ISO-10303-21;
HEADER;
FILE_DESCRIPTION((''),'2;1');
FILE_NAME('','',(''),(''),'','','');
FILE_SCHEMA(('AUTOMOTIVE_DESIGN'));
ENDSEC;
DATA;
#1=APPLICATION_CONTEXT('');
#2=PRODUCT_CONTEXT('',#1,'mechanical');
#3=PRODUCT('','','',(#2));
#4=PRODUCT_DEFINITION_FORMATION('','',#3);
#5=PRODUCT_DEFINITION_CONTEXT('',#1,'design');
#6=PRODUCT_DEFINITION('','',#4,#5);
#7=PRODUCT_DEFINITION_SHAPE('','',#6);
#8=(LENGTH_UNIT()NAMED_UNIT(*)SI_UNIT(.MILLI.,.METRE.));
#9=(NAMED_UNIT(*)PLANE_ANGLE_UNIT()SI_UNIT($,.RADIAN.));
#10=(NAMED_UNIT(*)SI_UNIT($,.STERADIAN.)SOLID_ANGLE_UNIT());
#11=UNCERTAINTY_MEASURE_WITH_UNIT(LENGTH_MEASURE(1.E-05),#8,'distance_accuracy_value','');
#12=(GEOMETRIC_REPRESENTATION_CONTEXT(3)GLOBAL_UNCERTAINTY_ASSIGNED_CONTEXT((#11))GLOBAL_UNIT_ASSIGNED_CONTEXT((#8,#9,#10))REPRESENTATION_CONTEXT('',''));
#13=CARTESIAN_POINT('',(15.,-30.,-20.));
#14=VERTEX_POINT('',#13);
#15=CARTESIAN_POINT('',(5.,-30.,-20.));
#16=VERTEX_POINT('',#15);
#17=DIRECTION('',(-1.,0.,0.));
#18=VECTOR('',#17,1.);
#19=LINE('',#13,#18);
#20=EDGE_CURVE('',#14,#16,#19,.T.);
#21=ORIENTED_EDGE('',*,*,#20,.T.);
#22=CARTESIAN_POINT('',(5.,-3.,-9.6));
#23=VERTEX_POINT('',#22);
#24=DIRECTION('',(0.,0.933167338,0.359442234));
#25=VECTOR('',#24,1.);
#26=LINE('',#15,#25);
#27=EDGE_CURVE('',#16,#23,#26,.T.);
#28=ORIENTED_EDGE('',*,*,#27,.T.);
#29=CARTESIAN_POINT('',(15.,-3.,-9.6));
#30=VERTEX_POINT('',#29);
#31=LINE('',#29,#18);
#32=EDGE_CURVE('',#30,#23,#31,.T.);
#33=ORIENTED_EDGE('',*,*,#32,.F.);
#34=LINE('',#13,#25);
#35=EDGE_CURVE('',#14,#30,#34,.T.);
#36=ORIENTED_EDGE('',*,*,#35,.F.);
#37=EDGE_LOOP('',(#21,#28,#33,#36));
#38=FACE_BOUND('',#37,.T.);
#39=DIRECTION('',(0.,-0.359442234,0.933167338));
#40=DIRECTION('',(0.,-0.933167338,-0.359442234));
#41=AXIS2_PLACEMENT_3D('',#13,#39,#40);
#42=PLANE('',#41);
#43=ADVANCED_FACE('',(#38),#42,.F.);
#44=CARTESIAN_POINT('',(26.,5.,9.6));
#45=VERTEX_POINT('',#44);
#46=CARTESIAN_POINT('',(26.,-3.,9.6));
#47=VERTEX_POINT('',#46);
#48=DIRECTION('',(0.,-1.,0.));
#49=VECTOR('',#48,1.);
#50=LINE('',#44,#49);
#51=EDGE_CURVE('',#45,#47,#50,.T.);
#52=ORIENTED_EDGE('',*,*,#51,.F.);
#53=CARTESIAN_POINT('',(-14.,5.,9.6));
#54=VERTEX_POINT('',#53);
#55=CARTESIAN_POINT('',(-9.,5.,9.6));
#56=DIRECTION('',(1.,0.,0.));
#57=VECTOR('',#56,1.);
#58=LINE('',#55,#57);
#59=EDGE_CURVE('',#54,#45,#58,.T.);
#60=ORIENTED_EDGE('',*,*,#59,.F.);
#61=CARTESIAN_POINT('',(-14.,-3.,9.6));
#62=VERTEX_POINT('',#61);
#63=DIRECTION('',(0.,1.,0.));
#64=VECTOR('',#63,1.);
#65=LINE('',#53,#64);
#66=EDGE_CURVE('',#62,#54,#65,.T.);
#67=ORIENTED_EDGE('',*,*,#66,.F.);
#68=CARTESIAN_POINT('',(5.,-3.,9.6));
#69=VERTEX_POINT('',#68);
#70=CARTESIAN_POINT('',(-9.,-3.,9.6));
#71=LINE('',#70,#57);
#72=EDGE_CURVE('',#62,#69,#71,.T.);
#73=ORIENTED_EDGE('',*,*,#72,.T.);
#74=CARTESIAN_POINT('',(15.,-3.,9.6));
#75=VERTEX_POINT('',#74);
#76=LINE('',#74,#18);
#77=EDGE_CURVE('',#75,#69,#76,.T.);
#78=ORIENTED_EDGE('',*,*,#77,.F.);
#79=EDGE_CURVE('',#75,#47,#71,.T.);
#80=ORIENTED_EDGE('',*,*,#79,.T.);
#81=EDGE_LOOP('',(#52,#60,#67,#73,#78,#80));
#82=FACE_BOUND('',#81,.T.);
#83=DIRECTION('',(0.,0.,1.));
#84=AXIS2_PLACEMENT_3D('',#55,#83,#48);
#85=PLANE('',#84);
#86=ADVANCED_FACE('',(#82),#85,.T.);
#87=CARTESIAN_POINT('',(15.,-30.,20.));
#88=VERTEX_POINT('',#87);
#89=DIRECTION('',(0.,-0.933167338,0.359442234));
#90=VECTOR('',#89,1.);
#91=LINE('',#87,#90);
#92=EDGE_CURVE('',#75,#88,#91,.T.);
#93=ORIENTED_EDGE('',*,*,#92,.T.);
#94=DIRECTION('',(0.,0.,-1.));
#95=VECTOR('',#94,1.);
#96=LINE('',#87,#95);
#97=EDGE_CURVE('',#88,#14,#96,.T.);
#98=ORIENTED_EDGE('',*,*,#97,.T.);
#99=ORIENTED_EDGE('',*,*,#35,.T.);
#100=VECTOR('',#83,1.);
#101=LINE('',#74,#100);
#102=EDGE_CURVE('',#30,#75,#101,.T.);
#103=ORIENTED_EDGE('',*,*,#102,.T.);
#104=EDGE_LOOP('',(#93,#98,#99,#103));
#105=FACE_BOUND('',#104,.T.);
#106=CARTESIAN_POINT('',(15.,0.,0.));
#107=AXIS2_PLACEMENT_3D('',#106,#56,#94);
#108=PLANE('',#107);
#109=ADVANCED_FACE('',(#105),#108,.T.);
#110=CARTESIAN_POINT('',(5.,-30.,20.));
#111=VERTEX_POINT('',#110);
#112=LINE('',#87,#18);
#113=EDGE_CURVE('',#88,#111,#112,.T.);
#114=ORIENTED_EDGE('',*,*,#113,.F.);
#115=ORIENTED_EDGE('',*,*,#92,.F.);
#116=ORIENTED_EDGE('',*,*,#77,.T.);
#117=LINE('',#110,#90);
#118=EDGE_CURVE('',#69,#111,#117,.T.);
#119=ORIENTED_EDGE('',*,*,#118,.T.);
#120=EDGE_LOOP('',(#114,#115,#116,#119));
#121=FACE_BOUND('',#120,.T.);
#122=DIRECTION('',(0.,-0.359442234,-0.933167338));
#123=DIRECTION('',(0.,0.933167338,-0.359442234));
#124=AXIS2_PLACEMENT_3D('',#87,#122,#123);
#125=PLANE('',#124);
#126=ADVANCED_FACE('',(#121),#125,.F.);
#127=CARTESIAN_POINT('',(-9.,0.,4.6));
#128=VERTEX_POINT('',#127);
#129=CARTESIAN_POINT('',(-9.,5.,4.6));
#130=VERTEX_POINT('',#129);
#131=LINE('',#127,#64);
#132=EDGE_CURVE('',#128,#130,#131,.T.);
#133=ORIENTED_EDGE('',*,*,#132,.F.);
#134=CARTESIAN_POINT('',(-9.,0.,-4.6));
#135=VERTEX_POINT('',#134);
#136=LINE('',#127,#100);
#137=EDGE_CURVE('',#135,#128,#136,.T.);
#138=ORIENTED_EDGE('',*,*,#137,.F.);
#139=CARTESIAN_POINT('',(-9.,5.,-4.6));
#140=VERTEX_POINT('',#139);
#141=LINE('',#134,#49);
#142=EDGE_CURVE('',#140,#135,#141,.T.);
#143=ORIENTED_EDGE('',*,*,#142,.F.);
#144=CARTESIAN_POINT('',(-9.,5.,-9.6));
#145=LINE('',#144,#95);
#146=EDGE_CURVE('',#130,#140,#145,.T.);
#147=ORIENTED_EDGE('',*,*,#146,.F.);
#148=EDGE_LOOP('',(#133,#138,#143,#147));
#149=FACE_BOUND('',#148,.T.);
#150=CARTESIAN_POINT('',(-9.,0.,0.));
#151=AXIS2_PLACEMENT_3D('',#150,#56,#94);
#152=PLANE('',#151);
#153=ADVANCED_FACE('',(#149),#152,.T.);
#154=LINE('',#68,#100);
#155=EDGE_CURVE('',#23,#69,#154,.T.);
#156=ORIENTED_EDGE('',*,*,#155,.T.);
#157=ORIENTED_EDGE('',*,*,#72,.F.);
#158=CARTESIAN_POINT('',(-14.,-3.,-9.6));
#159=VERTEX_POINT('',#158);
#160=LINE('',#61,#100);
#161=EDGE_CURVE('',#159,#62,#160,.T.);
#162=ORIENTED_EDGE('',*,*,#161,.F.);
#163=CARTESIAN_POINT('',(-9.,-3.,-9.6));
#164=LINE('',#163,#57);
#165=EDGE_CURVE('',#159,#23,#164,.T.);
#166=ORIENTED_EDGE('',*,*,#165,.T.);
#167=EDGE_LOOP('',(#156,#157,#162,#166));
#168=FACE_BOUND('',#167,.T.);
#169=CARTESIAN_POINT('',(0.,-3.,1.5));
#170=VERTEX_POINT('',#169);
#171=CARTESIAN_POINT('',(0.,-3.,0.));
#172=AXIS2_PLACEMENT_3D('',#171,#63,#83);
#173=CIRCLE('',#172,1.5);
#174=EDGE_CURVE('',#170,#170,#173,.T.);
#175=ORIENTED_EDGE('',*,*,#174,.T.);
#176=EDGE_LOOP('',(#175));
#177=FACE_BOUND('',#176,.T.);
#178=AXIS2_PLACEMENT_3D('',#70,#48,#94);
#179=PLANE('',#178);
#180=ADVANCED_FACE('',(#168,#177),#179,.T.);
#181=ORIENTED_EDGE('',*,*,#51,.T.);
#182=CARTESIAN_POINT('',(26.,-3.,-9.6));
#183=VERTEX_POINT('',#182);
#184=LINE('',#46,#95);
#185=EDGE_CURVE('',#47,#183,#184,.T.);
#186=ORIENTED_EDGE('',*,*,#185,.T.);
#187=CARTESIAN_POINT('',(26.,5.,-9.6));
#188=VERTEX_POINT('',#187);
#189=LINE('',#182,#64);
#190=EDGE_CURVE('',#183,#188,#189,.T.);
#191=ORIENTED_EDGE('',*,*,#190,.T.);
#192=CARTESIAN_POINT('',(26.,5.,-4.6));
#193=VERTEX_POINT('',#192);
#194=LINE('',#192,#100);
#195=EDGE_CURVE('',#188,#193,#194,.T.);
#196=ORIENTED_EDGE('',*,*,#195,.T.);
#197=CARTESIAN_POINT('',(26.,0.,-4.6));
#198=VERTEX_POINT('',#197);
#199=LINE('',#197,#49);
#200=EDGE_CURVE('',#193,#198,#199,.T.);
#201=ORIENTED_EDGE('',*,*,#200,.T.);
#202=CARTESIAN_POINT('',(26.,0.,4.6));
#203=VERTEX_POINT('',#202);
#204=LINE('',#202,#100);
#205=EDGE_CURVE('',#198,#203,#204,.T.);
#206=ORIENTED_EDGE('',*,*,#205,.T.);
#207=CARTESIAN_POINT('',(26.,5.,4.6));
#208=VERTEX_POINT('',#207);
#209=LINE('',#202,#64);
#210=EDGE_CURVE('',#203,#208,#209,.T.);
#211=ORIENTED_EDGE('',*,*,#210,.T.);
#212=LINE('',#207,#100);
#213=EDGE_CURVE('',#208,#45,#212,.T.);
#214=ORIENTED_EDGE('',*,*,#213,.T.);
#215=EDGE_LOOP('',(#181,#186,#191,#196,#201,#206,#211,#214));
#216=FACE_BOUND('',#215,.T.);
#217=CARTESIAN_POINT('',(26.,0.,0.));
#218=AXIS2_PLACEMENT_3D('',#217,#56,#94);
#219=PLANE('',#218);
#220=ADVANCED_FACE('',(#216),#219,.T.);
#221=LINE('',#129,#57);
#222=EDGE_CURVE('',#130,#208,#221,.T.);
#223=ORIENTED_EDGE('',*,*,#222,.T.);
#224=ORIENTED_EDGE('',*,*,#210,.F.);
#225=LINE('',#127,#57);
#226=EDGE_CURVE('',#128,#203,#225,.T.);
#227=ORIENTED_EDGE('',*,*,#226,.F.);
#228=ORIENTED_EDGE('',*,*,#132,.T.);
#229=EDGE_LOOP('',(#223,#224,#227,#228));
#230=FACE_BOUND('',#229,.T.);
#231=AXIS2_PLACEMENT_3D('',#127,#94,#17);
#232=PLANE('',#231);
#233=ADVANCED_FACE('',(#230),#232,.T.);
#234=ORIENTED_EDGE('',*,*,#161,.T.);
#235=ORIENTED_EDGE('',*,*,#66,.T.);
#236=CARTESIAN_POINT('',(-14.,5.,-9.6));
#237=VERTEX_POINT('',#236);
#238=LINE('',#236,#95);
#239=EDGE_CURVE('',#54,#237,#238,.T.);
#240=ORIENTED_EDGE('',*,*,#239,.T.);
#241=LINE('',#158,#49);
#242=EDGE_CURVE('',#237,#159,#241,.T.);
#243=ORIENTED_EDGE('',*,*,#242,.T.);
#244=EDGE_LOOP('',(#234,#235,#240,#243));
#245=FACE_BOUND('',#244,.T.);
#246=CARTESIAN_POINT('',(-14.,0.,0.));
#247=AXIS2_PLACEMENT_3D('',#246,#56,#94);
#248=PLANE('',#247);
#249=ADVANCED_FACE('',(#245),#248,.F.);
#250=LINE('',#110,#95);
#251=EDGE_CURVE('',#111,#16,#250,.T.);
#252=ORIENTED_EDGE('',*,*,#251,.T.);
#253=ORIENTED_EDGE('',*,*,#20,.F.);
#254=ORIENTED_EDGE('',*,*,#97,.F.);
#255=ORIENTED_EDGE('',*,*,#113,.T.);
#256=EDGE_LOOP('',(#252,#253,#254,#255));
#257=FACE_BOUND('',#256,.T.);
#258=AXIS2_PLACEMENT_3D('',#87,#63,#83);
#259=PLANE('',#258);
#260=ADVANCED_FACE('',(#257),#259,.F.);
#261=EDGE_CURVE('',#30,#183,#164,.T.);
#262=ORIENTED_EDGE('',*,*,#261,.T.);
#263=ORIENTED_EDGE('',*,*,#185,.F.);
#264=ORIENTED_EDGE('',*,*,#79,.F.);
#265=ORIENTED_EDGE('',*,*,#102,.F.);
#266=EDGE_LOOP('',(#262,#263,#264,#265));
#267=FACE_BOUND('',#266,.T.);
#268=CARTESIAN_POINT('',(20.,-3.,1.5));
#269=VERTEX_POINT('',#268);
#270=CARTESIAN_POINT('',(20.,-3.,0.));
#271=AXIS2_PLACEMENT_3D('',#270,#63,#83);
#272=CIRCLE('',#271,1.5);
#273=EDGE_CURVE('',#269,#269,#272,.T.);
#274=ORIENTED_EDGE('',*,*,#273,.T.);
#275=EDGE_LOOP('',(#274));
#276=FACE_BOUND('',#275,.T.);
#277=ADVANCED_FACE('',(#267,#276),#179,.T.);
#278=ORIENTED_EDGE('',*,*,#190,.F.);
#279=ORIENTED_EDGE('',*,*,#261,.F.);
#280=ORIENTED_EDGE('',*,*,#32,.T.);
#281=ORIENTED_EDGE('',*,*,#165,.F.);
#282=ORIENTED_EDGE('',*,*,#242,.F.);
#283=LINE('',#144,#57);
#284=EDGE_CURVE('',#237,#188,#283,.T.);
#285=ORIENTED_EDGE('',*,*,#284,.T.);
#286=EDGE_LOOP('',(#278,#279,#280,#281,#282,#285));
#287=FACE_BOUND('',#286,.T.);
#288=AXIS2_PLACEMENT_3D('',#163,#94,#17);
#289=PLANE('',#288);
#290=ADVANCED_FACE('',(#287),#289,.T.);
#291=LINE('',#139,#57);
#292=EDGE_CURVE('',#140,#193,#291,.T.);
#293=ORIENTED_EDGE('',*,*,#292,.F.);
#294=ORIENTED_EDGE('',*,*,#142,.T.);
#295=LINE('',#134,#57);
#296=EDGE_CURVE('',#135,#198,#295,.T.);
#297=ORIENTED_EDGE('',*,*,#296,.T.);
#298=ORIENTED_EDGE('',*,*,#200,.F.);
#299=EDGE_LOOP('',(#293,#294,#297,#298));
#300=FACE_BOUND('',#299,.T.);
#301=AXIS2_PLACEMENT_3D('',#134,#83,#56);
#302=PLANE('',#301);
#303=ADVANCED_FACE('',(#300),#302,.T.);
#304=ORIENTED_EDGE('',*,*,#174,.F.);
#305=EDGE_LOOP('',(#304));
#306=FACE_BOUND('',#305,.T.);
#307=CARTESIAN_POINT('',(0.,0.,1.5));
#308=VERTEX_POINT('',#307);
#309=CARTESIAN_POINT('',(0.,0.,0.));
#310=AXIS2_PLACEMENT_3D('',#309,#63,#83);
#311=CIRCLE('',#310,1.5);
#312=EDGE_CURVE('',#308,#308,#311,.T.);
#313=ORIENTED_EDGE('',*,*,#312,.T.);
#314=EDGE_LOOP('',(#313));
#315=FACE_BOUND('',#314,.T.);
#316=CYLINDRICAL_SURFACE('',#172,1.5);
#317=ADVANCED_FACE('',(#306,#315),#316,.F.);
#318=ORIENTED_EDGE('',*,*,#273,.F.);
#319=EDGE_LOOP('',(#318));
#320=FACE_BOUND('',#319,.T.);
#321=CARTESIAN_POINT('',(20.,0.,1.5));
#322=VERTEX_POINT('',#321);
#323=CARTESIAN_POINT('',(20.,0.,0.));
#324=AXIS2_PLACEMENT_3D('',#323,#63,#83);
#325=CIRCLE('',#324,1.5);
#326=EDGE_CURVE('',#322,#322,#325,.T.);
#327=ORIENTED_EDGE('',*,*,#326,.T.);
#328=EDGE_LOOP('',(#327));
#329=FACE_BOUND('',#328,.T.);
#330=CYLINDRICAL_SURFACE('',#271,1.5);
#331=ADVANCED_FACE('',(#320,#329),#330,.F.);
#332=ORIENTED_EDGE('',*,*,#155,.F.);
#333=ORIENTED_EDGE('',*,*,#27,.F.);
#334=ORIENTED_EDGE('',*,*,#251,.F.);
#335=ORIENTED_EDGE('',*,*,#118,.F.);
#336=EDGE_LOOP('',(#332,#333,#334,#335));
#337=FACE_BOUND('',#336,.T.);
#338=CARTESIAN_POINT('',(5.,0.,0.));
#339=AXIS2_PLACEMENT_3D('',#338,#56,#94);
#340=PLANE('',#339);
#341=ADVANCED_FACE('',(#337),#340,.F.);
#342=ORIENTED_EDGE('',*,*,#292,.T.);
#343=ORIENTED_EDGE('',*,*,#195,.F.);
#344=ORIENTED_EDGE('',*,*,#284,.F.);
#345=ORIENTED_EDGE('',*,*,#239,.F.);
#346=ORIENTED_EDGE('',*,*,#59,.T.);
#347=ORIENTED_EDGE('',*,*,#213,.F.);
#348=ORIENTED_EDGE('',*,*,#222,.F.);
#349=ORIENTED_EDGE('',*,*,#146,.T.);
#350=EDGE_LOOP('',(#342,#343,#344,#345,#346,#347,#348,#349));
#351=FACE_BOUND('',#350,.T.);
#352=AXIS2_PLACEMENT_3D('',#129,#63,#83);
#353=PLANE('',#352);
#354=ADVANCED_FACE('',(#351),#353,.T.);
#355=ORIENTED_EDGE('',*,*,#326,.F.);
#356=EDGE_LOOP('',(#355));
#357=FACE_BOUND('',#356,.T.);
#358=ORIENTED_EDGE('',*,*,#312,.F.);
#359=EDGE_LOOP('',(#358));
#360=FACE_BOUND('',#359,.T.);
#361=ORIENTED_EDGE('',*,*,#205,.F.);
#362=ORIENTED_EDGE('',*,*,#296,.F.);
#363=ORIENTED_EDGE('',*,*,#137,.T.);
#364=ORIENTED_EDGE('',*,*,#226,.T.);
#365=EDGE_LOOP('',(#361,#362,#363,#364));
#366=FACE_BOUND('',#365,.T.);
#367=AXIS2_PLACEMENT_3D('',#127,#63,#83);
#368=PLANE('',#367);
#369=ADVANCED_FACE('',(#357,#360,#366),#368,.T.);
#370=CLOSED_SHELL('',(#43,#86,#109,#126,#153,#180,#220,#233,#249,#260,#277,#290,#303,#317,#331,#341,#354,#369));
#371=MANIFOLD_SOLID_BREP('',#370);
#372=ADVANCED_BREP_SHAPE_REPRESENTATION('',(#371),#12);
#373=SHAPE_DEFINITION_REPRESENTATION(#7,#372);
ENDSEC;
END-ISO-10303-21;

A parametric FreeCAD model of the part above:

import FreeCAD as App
import Part
import Sketcher

doc = App.newDocument("Part")
params = doc.addObject("Spreadsheet::Sheet", "Params")
for row, (alias, value) in enumerate([
    ("sketch1_width", "5 mm"),
    ("sketch1_width2", "8 mm"),
    ("sketch1_height", "19.2 mm"),
    ("pad1_length", "26 mm"),
    ("pad1_length2", "9 mm"),
    ("sketch2_diameter", "3 mm"),
    ("sketch3_height", "40 mm"),
    ("sketch3_height2", "19.2 mm"),
    ("pad2_length", "10 mm"),
    ("sketch4_width", "8 mm"),
    ("sketch4_height", "19.2 mm"),
    ("pad3_length", "5 mm"),
], start=1):
    params.set(f"A{row}", alias)
    params.set(f"B{row}", "=" + value)
    params.setAlias(f"B{row}", alias)

body = doc.addObject("PartDesign::Body", "Body")

sketch1 = body.newObject("Sketcher::SketchObject", "Sketch")
sketch1.AttachmentSupport = (doc.getObject("YZ_Plane"), [""])
sketch1.MapMode = "FlatFace"
sketch1.addGeometry([
    Part.LineSegment(App.Vector(0, 4.6, 0), App.Vector(5, 4.6, 0)),
    Part.LineSegment(App.Vector(5, 4.6, 0), App.Vector(5, 9.6, 0)),
    Part.LineSegment(App.Vector(5, 9.6, 0), App.Vector(-3, 9.6, 0)),
    Part.LineSegment(App.Vector(-3, 9.6, 0), App.Vector(-3, -9.6, 0)),
    Part.LineSegment(App.Vector(-3, -9.6, 0), App.Vector(5, -9.6, 0)),
    Part.LineSegment(App.Vector(5, -9.6, 0), App.Vector(5, -4.6, 0)),
    Part.LineSegment(App.Vector(5, -4.6, 0), App.Vector(0, -4.6, 0)),
    Part.LineSegment(App.Vector(0, -4.6, 0), App.Vector(0, 4.6, 0)),
], False)
sketch1.addConstraint([
    Sketcher.Constraint("Coincident", 0, 2, 1, 1),
    Sketcher.Constraint("Coincident", 1, 2, 2, 1),
    Sketcher.Constraint("Coincident", 2, 2, 3, 1),
    Sketcher.Constraint("Coincident", 3, 2, 4, 1),
    Sketcher.Constraint("Coincident", 4, 2, 5, 1),
    Sketcher.Constraint("Coincident", 5, 2, 6, 1),
    Sketcher.Constraint("Coincident", 6, 2, 7, 1),
    Sketcher.Constraint("Coincident", 7, 2, 0, 1),
    Sketcher.Constraint("Horizontal", 0),
    Sketcher.Constraint("Vertical", 1),
    Sketcher.Constraint("Horizontal", 2),
    Sketcher.Constraint("Vertical", 3),
    Sketcher.Constraint("Horizontal", 4),
    Sketcher.Constraint("Vertical", 5),
    Sketcher.Constraint("Horizontal", 6),
    Sketcher.Constraint("Vertical", 7),
    Sketcher.Constraint("Symmetric", 6, 2, 7, 2, -1, 1),
    Sketcher.Constraint("Symmetric", 1, 2, 4, 2, -1),
    Sketcher.Constraint("Equal", 6, 1),
    Sketcher.Constraint("DistanceX", 0, 1, 0, 2, 5.0),
    Sketcher.Constraint("DistanceX", 2, 2, 2, 1, 8.0),
    Sketcher.Constraint("DistanceY", 3, 2, 3, 1, 19.2),
])
sketch1.setExpression("Constraints[19]", "Params.sketch1_width")
sketch1.setExpression("Constraints[20]", "Params.sketch1_width2")
sketch1.setExpression("Constraints[21]", "Params.sketch1_height")
pad1 = body.newObject("PartDesign::Pad", "Pad")
pad1.Profile = sketch1
pad1.Type = "TwoLengths"
pad1.setExpression("Length", "Params.pad1_length")
pad1.setExpression("Length2", "Params.pad1_length2")

sketch2 = body.newObject("Sketcher::SketchObject", "Sketch001")
sketch2.AttachmentSupport = (doc.getObject("XZ_Plane"), [""])
sketch2.MapMode = "FlatFace"
sketch2.addGeometry([
    Part.Circle(App.Vector(0, 0, 0), App.Vector(0, 0, 1), 1.5),
    Part.Circle(App.Vector(20, 0, 0), App.Vector(0, 0, 1), 1.5),
], False)
sketch2.addConstraint([
    Sketcher.Constraint("Coincident", 0, 3, -1, 1),
    Sketcher.Constraint("Equal", 0, 1),
    Sketcher.Constraint("PointOnObject", 1, 3, -1),
    Sketcher.Constraint("Diameter", 0, 3.0),
    Sketcher.Constraint("DistanceX", -1, 1, 1, 3, 20.0),
])
sketch2.setExpression("Constraints[3]", "Params.sketch2_diameter")
pocket1 = body.newObject("PartDesign::Pocket", "Pocket")
pocket1.Profile = sketch2
pocket1.Type = "ThroughAll"
pocket1.Midplane = True

sketch3 = body.newObject("Sketcher::SketchObject", "Sketch002")
sketch3.AttachmentSupport = (doc.getObject("YZ_Plane"), [""])
sketch3.MapMode = "FlatFace"
sketch3.AttachmentOffset = App.Placement(App.Vector(0, 0, 10), App.Rotation())
sketch3.addGeometry([
    Part.LineSegment(App.Vector(-3, 9.6, 0), App.Vector(-30, 20, 0)),
    Part.LineSegment(App.Vector(-30, 20, 0), App.Vector(-30, -20, 0)),
    Part.LineSegment(App.Vector(-30, -20, 0), App.Vector(-3, -9.6, 0)),
    Part.LineSegment(App.Vector(-3, -9.6, 0), App.Vector(-3, 9.6, 0)),
], False)
sketch3.addConstraint([
    Sketcher.Constraint("Coincident", 0, 2, 1, 1),
    Sketcher.Constraint("Coincident", 1, 2, 2, 1),
    Sketcher.Constraint("Coincident", 2, 2, 3, 1),
    Sketcher.Constraint("Coincident", 3, 2, 0, 1),
    Sketcher.Constraint("Vertical", 1),
    Sketcher.Constraint("Vertical", 3),
    Sketcher.Constraint("Equal", 0, 2),
    Sketcher.Constraint("DistanceY", 1, 2, 1, 1, 40.0),
    Sketcher.Constraint("DistanceY", 3, 1, 3, 2, 19.2),
    Sketcher.Constraint("DistanceX", 0, 2, -1, 1, 30.0),
    Sketcher.Constraint("DistanceY", -1, 1, 0, 2, 20.0),
    Sketcher.Constraint("DistanceX", 2, 2, -1, 1, 3.0),
])
sketch3.setExpression("Constraints[7]", "Params.sketch3_height")
sketch3.setExpression("Constraints[8]", "Params.sketch3_height2")
pad2 = body.newObject("PartDesign::Pad", "Pad001")
pad2.Profile = sketch3
pad2.setExpression("Length", "Params.pad2_length")
pad2.Midplane = True

sketch4 = body.newObject("Sketcher::SketchObject", "Sketch003")
sketch4.AttachmentSupport = (doc.getObject("YZ_Plane"), [""])
sketch4.MapMode = "FlatFace"
sketch4.AttachmentOffset = App.Placement(App.Vector(0, 0, -9), App.Rotation())
sketch4.addGeometry([
    Part.LineSegment(App.Vector(5, -9.6, 0), App.Vector(-3, -9.6, 0)),
    Part.LineSegment(App.Vector(-3, -9.6, 0), App.Vector(-3, 9.6, 0)),
    Part.LineSegment(App.Vector(-3, 9.6, 0), App.Vector(5, 9.6, 0)),
    Part.LineSegment(App.Vector(5, 9.6, 0), App.Vector(5, -9.6, 0)),
], False)
sketch4.addConstraint([
    Sketcher.Constraint("Coincident", 0, 2, 1, 1),
    Sketcher.Constraint("Coincident", 1, 2, 2, 1),
    Sketcher.Constraint("Coincident", 2, 2, 3, 1),
    Sketcher.Constraint("Coincident", 3, 2, 0, 1),
    Sketcher.Constraint("Horizontal", 0),
    Sketcher.Constraint("Vertical", 1),
    Sketcher.Constraint("Horizontal", 2),
    Sketcher.Constraint("Vertical", 3),
    Sketcher.Constraint("DistanceX", 0, 2, 0, 1, 8.0),
    Sketcher.Constraint("DistanceY", 1, 1, 1, 2, 19.2),
    Sketcher.Constraint("DistanceX", 0, 2, -1, 1, 3.0),
    Sketcher.Constraint("DistanceY", 0, 2, -1, 1, 9.6),
])
sketch4.setExpression("Constraints[8]", "Params.sketch4_width")
sketch4.setExpression("Constraints[9]", "Params.sketch4_height")
pad3 = body.newObject("PartDesign::Pad", "Pad002")
pad3.Profile = sketch4
pad3.setExpression("Length", "Params.pad3_length")
pad3.Reversed = True

doc.recompute()
